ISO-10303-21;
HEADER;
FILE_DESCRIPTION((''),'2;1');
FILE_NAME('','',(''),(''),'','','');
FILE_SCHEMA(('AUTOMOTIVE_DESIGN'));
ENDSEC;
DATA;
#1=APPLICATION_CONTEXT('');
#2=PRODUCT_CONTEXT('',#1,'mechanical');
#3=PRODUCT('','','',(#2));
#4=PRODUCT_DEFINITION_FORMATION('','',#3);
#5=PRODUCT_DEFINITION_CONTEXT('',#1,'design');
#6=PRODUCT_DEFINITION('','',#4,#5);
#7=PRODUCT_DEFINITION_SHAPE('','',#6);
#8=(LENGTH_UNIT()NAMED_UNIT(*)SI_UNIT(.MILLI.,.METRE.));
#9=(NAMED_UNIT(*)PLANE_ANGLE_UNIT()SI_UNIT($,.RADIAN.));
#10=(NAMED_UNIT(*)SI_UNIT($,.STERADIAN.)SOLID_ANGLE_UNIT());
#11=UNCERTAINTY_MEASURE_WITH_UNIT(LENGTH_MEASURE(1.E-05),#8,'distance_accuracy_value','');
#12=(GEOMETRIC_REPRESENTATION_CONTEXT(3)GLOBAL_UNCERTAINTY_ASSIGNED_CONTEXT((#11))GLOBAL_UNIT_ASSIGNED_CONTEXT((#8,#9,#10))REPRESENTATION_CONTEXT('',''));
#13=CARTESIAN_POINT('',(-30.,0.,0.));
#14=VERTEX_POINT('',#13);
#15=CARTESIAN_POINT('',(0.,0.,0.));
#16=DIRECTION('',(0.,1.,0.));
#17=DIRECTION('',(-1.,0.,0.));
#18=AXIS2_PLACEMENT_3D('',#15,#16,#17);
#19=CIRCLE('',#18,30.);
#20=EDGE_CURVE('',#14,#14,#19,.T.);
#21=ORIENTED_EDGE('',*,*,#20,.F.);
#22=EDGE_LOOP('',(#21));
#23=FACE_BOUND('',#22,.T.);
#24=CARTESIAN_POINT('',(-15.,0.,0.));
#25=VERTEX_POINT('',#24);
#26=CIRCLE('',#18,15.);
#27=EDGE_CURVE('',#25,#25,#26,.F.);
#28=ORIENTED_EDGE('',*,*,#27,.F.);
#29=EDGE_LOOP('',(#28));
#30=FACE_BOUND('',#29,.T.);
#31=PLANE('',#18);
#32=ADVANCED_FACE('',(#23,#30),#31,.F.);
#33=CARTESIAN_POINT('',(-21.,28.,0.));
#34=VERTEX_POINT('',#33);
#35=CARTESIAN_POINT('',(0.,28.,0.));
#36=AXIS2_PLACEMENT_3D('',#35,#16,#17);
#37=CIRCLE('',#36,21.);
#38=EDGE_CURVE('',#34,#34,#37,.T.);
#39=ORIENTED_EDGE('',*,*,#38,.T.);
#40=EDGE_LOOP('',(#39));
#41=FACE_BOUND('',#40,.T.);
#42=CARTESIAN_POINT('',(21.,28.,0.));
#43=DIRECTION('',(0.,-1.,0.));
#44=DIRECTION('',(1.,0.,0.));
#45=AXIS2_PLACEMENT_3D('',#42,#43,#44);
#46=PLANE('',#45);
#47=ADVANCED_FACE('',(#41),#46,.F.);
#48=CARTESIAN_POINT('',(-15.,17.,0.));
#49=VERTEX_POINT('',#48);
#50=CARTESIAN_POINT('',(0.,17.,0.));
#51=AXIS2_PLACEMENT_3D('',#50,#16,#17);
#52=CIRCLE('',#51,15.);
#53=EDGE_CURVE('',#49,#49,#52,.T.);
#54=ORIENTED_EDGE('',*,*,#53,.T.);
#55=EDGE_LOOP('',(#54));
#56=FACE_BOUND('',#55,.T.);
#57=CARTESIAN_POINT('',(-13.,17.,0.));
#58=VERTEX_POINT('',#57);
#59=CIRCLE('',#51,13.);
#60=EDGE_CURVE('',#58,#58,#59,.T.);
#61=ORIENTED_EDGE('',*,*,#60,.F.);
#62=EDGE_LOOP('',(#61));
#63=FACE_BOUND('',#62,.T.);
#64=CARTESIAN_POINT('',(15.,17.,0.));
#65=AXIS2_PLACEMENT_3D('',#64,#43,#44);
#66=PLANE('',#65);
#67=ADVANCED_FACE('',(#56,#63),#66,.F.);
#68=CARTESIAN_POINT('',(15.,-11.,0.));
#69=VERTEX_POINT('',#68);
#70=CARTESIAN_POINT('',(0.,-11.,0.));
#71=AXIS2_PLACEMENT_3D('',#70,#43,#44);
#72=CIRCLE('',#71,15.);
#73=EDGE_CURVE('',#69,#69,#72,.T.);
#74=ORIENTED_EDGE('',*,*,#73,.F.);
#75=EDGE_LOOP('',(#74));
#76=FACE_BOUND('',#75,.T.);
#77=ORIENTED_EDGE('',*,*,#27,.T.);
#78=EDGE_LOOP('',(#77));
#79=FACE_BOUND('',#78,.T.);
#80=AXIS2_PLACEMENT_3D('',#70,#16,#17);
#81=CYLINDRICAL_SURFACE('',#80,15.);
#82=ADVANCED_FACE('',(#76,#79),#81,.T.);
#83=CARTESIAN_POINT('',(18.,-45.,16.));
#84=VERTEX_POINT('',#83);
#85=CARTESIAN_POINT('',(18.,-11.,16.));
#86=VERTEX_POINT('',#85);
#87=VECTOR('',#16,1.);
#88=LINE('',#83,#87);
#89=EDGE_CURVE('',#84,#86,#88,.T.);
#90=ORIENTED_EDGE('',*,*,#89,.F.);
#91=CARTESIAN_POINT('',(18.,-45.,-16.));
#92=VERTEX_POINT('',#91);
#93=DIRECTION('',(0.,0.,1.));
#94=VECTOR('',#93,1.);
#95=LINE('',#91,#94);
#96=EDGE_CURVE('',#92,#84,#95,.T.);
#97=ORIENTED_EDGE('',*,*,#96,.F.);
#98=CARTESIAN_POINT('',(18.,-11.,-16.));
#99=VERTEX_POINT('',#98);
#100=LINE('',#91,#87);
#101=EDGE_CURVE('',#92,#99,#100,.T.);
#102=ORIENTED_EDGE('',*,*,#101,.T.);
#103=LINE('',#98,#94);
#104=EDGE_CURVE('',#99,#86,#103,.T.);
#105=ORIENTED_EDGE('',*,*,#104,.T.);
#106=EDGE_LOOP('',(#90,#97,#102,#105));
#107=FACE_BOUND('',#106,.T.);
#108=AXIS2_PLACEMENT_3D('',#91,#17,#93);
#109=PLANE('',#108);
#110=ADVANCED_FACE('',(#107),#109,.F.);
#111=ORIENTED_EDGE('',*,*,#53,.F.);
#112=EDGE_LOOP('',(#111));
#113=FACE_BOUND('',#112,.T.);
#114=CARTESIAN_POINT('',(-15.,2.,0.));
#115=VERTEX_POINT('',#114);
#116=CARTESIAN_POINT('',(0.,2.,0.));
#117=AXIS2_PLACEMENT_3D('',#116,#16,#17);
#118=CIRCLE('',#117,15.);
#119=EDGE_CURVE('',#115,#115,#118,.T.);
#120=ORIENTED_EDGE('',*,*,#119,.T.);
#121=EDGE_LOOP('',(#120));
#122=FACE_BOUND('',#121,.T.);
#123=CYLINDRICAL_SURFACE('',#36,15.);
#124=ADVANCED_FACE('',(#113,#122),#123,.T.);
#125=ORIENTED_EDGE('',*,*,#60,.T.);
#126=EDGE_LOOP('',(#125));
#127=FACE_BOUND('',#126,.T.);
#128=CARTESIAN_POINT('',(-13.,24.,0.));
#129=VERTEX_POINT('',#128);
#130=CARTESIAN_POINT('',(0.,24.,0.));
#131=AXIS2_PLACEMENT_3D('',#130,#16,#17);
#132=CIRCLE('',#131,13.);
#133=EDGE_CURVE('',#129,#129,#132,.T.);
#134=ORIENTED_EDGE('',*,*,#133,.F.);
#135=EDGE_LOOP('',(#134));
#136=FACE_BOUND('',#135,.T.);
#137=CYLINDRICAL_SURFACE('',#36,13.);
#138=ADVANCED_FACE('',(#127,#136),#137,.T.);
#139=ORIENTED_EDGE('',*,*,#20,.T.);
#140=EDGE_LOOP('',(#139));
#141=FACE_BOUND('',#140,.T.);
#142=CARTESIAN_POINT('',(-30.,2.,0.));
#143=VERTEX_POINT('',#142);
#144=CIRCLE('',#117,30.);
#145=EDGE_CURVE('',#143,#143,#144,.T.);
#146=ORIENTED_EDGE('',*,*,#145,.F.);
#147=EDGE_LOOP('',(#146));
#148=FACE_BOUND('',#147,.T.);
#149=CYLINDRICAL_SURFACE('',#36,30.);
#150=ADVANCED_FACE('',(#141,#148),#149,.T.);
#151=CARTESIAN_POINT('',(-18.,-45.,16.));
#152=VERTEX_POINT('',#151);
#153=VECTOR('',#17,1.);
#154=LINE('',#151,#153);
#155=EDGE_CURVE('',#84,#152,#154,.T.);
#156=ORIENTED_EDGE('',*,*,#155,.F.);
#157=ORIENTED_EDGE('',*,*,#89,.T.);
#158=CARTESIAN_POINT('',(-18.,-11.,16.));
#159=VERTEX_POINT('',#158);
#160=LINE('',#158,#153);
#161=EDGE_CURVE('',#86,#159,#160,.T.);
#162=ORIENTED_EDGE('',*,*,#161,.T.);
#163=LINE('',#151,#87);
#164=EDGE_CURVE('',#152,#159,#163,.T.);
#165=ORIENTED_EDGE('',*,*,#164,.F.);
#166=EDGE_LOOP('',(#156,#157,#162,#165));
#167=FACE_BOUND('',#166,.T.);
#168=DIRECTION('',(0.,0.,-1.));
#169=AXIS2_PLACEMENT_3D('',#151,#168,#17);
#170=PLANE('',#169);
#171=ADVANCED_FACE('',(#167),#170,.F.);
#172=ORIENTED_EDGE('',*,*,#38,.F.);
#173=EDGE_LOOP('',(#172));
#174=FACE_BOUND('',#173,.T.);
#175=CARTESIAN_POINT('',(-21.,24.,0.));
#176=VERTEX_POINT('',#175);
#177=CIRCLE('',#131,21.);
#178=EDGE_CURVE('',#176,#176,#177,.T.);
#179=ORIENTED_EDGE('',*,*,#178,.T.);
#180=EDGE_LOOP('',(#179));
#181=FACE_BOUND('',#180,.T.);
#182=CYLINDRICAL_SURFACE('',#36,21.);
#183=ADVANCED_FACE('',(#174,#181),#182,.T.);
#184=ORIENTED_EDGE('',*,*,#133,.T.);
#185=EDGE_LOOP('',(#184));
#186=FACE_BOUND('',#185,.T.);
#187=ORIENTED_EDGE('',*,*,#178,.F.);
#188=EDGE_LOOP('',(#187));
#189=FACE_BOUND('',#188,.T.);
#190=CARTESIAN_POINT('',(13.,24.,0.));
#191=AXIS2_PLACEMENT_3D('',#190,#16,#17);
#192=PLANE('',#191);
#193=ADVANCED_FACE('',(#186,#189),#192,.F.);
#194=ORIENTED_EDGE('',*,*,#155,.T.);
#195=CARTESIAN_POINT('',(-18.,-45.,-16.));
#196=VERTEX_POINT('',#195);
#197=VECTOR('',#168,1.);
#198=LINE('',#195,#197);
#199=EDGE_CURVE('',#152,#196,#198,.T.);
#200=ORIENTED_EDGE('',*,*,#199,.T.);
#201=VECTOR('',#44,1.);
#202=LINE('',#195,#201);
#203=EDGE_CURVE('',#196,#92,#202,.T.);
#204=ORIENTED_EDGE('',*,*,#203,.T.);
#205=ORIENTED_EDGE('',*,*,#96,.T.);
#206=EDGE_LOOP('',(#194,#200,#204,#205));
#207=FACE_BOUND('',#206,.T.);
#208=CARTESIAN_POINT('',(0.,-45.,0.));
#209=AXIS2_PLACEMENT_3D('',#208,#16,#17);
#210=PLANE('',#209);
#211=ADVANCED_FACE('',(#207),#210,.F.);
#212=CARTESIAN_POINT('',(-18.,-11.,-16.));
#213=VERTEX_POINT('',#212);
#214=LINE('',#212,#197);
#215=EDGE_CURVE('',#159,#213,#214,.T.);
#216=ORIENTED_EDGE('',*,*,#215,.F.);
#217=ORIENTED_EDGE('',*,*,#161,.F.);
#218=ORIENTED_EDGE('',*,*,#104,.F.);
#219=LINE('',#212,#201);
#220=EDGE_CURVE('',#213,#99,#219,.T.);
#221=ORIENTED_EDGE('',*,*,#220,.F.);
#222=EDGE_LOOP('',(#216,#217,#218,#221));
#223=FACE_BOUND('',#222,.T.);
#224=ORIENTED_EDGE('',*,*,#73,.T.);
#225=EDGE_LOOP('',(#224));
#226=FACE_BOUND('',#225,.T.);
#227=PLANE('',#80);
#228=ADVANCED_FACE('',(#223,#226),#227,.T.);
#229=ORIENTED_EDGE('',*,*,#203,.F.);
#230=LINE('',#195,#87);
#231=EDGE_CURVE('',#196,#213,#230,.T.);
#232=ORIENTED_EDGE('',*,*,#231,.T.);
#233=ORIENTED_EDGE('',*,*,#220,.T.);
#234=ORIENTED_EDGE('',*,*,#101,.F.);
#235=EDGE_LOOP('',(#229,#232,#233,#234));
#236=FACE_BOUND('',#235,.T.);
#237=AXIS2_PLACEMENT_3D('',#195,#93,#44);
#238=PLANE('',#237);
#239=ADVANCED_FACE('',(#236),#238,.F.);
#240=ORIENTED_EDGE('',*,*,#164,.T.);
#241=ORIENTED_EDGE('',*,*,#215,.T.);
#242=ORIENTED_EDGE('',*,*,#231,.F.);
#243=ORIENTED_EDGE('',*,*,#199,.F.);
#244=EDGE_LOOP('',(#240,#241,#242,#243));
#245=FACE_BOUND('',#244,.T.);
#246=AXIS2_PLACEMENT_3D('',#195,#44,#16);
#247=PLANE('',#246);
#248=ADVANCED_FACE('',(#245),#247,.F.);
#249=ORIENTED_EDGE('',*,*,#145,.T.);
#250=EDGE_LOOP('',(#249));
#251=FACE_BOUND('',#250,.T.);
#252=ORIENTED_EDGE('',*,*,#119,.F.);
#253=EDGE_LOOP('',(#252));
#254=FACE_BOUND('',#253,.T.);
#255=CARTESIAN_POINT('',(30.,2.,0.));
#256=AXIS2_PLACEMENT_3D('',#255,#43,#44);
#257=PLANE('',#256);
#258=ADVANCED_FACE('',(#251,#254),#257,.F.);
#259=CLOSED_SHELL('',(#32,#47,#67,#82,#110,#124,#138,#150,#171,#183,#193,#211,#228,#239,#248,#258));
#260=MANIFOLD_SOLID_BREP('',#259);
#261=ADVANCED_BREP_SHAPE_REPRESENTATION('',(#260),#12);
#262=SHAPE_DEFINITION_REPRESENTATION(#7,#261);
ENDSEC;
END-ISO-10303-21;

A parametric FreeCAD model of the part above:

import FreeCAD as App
import Part
import Sketcher
from FreeCAD import Vector

doc = App.newDocument("Part")
body = doc.addObject("PartDesign::Body", "Body")

# Sketch on XY plane
sketch1 = body.newObject("Sketcher::SketchObject", "Sketch")
sketch1.AttachmentSupport = (doc.getObject("XY_Plane"), [""])
sketch1.MapMode = "FlatFace"
sketch1.addGeometry(Part.LineSegment(Vector(0, 0, 0), Vector(30, 0, 0)), False)
sketch1.addGeometry(Part.LineSegment(Vector(30, 0, 0), Vector(30, 2, 0)), False)
sketch1.addGeometry(Part.LineSegment(Vector(30, 2, 0), Vector(15, 2, 0)), False)
sketch1.addGeometry(Part.LineSegment(Vector(15, 2, 0), Vector(15, 17, 0)), False)
sketch1.addGeometry(Part.LineSegment(Vector(15, 17, 0), Vector(13, 17, 0)), False)
sketch1.addGeometry(Part.LineSegment(Vector(13, 17, 0), Vector(13, 24, 0)), False)
sketch1.addGeometry(Part.LineSegment(Vector(13, 24, 0), Vector(21, 24, 0)), False)
sketch1.addGeometry(Part.LineSegment(Vector(21, 24, 0), Vector(21, 28, 0)), False)
sketch1.addGeometry(Part.LineSegment(Vector(21, 28, 0), Vector(0, 28, 0)), False)
sketch1.addGeometry(Part.LineSegment(Vector(0, 28, 0), Vector(0, 0, 0)), False)
sketch1.addConstraint(Sketcher.Constraint("Coincident", 0, 2, 1, 1))
sketch1.addConstraint(Sketcher.Constraint("Coincident", 1, 2, 2, 1))
sketch1.addConstraint(Sketcher.Constraint("Coincident", 2, 2, 3, 1))
sketch1.addConstraint(Sketcher.Constraint("Coincident", 3, 2, 4, 1))
sketch1.addConstraint(Sketcher.Constraint("Coincident", 4, 2, 5, 1))
sketch1.addConstraint(Sketcher.Constraint("Coincident", 5, 2, 6, 1))
sketch1.addConstraint(Sketcher.Constraint("Coincident", 6, 2, 7, 1))
sketch1.addConstraint(Sketcher.Constraint("Coincident", 7, 2, 8, 1))
sketch1.addConstraint(Sketcher.Constraint("Coincident", 8, 2, 9, 1))
sketch1.addConstraint(Sketcher.Constraint("Coincident", 9, 2, 0, 1))
sketch1.addConstraint(Sketcher.Constraint("Horizontal", 0))
sketch1.addConstraint(Sketcher.Constraint("Vertical", 1))
sketch1.addConstraint(Sketcher.Constraint("Horizontal", 2))
sketch1.addConstraint(Sketcher.Constraint("Vertical", 3))
sketch1.addConstraint(Sketcher.Constraint("Horizontal", 4))
sketch1.addConstraint(Sketcher.Constraint("Vertical", 5))
sketch1.addConstraint(Sketcher.Constraint("Horizontal", 6))
sketch1.addConstraint(Sketcher.Constraint("Vertical", 7))
sketch1.addConstraint(Sketcher.Constraint("Horizontal", 8))
sketch1.addConstraint(Sketcher.Constraint("Vertical", 9))
sketch1.addConstraint(Sketcher.Constraint("Coincident", 9, 2, -1, 1))
sketch1.addConstraint(Sketcher.Constraint("Equal", 4, 1))
sketch1.addConstraint(Sketcher.Constraint("Equal", 2, 3))
sketch1.addConstraint(Sketcher.Constraint("DistanceX", 0, 1, 0, 2, 30.0))
sketch1.addConstraint(Sketcher.Constraint("DistanceX", 2, 2, 2, 1, 15.0))
sketch1.addConstraint(Sketcher.Constraint("DistanceX", 4, 2, 4, 1, 2.0))
sketch1.addConstraint(Sketcher.Constraint("DistanceX", 6, 1, 6, 2, 8.0))
sketch1.addConstraint(Sketcher.Constraint("DistanceY", 5, 1, 5, 2, 7.0))
sketch1.addConstraint(Sketcher.Constraint("DistanceY", 7, 1, 7, 2, 4.0))
revolution = body.newObject("PartDesign::Revolution", "Revolution")
revolution.Profile = sketch1
revolution.ReferenceAxis = (sketch1, ["V_Axis"])
revolution.Angle = 360

# Sketch on XZ plane
sketch2 = body.newObject("Sketcher::SketchObject", "Sketch001")
sketch2.AttachmentSupport = (doc.getObject("XZ_Plane"), [""])
sketch2.MapMode = "FlatFace"
sketch2.addGeometry(Part.Circle(Vector(0, 0, 0), Vector(0, 0, 1), 15), False)
sketch2.addConstraint(Sketcher.Constraint("Coincident", 0, 3, -1, 1))
sketch2.addConstraint(Sketcher.Constraint("Diameter", 0, 30.0))
pad1 = body.newObject("PartDesign::Pad", "Pad")
pad1.Profile = sketch2
pad1.Length = 11

# Sketch on XZ plane
sketch3 = body.newObject("Sketcher::SketchObject", "Sketch002")
sketch3.AttachmentSupport = (doc.getObject("XZ_Plane"), [""])
sketch3.MapMode = "FlatFace"
sketch3.AttachmentOffset = App.Placement(Vector(0, 0, 11), App.Rotation())
sketch3.addGeometry(Part.LineSegment(Vector(18, -16, 0), Vector(18, 16, 0)), False)
sketch3.addGeometry(Part.LineSegment(Vector(18, 16, 0), Vector(-18, 16, 0)), False)
sketch3.addGeometry(Part.LineSegment(Vector(-18, 16, 0), Vector(-18, -16, 0)), False)
sketch3.addGeometry(Part.LineSegment(Vector(-18, -16, 0), Vector(18, -16, 0)), False)
sketch3.addConstraint(Sketcher.Constraint("Coincident", 0, 2, 1, 1))
sketch3.addConstraint(Sketcher.Constraint("Coincident", 1, 2, 2, 1))
sketch3.addConstraint(Sketcher.Constraint("Coincident", 2, 2, 3, 1))
sketch3.addConstraint(Sketcher.Constraint("Coincident", 3, 2, 0, 1))
sketch3.addConstraint(Sketcher.Constraint("Vertical", 0))
sketch3.addConstraint(Sketcher.Constraint("Horizontal", 1))
sketch3.addConstraint(Sketcher.Constraint("Vertical", 2))
sketch3.addConstraint(Sketcher.Constraint("Horizontal", 3))
sketch3.addConstraint(Sketcher.Constraint("Symmetric", 0, 2, 2, 2, -1, 1))
sketch3.addConstraint(Sketcher.Constraint("DistanceX", 1, 2, 1, 1, 36.0))
sketch3.addConstraint(Sketcher.Constraint("DistanceY", 0, 1, 0, 2, 32.0))
pad2 = body.newObject("PartDesign::Pad", "Pad001")
pad2.Profile = sketch3
pad2.Length = 34

doc.recompute()
